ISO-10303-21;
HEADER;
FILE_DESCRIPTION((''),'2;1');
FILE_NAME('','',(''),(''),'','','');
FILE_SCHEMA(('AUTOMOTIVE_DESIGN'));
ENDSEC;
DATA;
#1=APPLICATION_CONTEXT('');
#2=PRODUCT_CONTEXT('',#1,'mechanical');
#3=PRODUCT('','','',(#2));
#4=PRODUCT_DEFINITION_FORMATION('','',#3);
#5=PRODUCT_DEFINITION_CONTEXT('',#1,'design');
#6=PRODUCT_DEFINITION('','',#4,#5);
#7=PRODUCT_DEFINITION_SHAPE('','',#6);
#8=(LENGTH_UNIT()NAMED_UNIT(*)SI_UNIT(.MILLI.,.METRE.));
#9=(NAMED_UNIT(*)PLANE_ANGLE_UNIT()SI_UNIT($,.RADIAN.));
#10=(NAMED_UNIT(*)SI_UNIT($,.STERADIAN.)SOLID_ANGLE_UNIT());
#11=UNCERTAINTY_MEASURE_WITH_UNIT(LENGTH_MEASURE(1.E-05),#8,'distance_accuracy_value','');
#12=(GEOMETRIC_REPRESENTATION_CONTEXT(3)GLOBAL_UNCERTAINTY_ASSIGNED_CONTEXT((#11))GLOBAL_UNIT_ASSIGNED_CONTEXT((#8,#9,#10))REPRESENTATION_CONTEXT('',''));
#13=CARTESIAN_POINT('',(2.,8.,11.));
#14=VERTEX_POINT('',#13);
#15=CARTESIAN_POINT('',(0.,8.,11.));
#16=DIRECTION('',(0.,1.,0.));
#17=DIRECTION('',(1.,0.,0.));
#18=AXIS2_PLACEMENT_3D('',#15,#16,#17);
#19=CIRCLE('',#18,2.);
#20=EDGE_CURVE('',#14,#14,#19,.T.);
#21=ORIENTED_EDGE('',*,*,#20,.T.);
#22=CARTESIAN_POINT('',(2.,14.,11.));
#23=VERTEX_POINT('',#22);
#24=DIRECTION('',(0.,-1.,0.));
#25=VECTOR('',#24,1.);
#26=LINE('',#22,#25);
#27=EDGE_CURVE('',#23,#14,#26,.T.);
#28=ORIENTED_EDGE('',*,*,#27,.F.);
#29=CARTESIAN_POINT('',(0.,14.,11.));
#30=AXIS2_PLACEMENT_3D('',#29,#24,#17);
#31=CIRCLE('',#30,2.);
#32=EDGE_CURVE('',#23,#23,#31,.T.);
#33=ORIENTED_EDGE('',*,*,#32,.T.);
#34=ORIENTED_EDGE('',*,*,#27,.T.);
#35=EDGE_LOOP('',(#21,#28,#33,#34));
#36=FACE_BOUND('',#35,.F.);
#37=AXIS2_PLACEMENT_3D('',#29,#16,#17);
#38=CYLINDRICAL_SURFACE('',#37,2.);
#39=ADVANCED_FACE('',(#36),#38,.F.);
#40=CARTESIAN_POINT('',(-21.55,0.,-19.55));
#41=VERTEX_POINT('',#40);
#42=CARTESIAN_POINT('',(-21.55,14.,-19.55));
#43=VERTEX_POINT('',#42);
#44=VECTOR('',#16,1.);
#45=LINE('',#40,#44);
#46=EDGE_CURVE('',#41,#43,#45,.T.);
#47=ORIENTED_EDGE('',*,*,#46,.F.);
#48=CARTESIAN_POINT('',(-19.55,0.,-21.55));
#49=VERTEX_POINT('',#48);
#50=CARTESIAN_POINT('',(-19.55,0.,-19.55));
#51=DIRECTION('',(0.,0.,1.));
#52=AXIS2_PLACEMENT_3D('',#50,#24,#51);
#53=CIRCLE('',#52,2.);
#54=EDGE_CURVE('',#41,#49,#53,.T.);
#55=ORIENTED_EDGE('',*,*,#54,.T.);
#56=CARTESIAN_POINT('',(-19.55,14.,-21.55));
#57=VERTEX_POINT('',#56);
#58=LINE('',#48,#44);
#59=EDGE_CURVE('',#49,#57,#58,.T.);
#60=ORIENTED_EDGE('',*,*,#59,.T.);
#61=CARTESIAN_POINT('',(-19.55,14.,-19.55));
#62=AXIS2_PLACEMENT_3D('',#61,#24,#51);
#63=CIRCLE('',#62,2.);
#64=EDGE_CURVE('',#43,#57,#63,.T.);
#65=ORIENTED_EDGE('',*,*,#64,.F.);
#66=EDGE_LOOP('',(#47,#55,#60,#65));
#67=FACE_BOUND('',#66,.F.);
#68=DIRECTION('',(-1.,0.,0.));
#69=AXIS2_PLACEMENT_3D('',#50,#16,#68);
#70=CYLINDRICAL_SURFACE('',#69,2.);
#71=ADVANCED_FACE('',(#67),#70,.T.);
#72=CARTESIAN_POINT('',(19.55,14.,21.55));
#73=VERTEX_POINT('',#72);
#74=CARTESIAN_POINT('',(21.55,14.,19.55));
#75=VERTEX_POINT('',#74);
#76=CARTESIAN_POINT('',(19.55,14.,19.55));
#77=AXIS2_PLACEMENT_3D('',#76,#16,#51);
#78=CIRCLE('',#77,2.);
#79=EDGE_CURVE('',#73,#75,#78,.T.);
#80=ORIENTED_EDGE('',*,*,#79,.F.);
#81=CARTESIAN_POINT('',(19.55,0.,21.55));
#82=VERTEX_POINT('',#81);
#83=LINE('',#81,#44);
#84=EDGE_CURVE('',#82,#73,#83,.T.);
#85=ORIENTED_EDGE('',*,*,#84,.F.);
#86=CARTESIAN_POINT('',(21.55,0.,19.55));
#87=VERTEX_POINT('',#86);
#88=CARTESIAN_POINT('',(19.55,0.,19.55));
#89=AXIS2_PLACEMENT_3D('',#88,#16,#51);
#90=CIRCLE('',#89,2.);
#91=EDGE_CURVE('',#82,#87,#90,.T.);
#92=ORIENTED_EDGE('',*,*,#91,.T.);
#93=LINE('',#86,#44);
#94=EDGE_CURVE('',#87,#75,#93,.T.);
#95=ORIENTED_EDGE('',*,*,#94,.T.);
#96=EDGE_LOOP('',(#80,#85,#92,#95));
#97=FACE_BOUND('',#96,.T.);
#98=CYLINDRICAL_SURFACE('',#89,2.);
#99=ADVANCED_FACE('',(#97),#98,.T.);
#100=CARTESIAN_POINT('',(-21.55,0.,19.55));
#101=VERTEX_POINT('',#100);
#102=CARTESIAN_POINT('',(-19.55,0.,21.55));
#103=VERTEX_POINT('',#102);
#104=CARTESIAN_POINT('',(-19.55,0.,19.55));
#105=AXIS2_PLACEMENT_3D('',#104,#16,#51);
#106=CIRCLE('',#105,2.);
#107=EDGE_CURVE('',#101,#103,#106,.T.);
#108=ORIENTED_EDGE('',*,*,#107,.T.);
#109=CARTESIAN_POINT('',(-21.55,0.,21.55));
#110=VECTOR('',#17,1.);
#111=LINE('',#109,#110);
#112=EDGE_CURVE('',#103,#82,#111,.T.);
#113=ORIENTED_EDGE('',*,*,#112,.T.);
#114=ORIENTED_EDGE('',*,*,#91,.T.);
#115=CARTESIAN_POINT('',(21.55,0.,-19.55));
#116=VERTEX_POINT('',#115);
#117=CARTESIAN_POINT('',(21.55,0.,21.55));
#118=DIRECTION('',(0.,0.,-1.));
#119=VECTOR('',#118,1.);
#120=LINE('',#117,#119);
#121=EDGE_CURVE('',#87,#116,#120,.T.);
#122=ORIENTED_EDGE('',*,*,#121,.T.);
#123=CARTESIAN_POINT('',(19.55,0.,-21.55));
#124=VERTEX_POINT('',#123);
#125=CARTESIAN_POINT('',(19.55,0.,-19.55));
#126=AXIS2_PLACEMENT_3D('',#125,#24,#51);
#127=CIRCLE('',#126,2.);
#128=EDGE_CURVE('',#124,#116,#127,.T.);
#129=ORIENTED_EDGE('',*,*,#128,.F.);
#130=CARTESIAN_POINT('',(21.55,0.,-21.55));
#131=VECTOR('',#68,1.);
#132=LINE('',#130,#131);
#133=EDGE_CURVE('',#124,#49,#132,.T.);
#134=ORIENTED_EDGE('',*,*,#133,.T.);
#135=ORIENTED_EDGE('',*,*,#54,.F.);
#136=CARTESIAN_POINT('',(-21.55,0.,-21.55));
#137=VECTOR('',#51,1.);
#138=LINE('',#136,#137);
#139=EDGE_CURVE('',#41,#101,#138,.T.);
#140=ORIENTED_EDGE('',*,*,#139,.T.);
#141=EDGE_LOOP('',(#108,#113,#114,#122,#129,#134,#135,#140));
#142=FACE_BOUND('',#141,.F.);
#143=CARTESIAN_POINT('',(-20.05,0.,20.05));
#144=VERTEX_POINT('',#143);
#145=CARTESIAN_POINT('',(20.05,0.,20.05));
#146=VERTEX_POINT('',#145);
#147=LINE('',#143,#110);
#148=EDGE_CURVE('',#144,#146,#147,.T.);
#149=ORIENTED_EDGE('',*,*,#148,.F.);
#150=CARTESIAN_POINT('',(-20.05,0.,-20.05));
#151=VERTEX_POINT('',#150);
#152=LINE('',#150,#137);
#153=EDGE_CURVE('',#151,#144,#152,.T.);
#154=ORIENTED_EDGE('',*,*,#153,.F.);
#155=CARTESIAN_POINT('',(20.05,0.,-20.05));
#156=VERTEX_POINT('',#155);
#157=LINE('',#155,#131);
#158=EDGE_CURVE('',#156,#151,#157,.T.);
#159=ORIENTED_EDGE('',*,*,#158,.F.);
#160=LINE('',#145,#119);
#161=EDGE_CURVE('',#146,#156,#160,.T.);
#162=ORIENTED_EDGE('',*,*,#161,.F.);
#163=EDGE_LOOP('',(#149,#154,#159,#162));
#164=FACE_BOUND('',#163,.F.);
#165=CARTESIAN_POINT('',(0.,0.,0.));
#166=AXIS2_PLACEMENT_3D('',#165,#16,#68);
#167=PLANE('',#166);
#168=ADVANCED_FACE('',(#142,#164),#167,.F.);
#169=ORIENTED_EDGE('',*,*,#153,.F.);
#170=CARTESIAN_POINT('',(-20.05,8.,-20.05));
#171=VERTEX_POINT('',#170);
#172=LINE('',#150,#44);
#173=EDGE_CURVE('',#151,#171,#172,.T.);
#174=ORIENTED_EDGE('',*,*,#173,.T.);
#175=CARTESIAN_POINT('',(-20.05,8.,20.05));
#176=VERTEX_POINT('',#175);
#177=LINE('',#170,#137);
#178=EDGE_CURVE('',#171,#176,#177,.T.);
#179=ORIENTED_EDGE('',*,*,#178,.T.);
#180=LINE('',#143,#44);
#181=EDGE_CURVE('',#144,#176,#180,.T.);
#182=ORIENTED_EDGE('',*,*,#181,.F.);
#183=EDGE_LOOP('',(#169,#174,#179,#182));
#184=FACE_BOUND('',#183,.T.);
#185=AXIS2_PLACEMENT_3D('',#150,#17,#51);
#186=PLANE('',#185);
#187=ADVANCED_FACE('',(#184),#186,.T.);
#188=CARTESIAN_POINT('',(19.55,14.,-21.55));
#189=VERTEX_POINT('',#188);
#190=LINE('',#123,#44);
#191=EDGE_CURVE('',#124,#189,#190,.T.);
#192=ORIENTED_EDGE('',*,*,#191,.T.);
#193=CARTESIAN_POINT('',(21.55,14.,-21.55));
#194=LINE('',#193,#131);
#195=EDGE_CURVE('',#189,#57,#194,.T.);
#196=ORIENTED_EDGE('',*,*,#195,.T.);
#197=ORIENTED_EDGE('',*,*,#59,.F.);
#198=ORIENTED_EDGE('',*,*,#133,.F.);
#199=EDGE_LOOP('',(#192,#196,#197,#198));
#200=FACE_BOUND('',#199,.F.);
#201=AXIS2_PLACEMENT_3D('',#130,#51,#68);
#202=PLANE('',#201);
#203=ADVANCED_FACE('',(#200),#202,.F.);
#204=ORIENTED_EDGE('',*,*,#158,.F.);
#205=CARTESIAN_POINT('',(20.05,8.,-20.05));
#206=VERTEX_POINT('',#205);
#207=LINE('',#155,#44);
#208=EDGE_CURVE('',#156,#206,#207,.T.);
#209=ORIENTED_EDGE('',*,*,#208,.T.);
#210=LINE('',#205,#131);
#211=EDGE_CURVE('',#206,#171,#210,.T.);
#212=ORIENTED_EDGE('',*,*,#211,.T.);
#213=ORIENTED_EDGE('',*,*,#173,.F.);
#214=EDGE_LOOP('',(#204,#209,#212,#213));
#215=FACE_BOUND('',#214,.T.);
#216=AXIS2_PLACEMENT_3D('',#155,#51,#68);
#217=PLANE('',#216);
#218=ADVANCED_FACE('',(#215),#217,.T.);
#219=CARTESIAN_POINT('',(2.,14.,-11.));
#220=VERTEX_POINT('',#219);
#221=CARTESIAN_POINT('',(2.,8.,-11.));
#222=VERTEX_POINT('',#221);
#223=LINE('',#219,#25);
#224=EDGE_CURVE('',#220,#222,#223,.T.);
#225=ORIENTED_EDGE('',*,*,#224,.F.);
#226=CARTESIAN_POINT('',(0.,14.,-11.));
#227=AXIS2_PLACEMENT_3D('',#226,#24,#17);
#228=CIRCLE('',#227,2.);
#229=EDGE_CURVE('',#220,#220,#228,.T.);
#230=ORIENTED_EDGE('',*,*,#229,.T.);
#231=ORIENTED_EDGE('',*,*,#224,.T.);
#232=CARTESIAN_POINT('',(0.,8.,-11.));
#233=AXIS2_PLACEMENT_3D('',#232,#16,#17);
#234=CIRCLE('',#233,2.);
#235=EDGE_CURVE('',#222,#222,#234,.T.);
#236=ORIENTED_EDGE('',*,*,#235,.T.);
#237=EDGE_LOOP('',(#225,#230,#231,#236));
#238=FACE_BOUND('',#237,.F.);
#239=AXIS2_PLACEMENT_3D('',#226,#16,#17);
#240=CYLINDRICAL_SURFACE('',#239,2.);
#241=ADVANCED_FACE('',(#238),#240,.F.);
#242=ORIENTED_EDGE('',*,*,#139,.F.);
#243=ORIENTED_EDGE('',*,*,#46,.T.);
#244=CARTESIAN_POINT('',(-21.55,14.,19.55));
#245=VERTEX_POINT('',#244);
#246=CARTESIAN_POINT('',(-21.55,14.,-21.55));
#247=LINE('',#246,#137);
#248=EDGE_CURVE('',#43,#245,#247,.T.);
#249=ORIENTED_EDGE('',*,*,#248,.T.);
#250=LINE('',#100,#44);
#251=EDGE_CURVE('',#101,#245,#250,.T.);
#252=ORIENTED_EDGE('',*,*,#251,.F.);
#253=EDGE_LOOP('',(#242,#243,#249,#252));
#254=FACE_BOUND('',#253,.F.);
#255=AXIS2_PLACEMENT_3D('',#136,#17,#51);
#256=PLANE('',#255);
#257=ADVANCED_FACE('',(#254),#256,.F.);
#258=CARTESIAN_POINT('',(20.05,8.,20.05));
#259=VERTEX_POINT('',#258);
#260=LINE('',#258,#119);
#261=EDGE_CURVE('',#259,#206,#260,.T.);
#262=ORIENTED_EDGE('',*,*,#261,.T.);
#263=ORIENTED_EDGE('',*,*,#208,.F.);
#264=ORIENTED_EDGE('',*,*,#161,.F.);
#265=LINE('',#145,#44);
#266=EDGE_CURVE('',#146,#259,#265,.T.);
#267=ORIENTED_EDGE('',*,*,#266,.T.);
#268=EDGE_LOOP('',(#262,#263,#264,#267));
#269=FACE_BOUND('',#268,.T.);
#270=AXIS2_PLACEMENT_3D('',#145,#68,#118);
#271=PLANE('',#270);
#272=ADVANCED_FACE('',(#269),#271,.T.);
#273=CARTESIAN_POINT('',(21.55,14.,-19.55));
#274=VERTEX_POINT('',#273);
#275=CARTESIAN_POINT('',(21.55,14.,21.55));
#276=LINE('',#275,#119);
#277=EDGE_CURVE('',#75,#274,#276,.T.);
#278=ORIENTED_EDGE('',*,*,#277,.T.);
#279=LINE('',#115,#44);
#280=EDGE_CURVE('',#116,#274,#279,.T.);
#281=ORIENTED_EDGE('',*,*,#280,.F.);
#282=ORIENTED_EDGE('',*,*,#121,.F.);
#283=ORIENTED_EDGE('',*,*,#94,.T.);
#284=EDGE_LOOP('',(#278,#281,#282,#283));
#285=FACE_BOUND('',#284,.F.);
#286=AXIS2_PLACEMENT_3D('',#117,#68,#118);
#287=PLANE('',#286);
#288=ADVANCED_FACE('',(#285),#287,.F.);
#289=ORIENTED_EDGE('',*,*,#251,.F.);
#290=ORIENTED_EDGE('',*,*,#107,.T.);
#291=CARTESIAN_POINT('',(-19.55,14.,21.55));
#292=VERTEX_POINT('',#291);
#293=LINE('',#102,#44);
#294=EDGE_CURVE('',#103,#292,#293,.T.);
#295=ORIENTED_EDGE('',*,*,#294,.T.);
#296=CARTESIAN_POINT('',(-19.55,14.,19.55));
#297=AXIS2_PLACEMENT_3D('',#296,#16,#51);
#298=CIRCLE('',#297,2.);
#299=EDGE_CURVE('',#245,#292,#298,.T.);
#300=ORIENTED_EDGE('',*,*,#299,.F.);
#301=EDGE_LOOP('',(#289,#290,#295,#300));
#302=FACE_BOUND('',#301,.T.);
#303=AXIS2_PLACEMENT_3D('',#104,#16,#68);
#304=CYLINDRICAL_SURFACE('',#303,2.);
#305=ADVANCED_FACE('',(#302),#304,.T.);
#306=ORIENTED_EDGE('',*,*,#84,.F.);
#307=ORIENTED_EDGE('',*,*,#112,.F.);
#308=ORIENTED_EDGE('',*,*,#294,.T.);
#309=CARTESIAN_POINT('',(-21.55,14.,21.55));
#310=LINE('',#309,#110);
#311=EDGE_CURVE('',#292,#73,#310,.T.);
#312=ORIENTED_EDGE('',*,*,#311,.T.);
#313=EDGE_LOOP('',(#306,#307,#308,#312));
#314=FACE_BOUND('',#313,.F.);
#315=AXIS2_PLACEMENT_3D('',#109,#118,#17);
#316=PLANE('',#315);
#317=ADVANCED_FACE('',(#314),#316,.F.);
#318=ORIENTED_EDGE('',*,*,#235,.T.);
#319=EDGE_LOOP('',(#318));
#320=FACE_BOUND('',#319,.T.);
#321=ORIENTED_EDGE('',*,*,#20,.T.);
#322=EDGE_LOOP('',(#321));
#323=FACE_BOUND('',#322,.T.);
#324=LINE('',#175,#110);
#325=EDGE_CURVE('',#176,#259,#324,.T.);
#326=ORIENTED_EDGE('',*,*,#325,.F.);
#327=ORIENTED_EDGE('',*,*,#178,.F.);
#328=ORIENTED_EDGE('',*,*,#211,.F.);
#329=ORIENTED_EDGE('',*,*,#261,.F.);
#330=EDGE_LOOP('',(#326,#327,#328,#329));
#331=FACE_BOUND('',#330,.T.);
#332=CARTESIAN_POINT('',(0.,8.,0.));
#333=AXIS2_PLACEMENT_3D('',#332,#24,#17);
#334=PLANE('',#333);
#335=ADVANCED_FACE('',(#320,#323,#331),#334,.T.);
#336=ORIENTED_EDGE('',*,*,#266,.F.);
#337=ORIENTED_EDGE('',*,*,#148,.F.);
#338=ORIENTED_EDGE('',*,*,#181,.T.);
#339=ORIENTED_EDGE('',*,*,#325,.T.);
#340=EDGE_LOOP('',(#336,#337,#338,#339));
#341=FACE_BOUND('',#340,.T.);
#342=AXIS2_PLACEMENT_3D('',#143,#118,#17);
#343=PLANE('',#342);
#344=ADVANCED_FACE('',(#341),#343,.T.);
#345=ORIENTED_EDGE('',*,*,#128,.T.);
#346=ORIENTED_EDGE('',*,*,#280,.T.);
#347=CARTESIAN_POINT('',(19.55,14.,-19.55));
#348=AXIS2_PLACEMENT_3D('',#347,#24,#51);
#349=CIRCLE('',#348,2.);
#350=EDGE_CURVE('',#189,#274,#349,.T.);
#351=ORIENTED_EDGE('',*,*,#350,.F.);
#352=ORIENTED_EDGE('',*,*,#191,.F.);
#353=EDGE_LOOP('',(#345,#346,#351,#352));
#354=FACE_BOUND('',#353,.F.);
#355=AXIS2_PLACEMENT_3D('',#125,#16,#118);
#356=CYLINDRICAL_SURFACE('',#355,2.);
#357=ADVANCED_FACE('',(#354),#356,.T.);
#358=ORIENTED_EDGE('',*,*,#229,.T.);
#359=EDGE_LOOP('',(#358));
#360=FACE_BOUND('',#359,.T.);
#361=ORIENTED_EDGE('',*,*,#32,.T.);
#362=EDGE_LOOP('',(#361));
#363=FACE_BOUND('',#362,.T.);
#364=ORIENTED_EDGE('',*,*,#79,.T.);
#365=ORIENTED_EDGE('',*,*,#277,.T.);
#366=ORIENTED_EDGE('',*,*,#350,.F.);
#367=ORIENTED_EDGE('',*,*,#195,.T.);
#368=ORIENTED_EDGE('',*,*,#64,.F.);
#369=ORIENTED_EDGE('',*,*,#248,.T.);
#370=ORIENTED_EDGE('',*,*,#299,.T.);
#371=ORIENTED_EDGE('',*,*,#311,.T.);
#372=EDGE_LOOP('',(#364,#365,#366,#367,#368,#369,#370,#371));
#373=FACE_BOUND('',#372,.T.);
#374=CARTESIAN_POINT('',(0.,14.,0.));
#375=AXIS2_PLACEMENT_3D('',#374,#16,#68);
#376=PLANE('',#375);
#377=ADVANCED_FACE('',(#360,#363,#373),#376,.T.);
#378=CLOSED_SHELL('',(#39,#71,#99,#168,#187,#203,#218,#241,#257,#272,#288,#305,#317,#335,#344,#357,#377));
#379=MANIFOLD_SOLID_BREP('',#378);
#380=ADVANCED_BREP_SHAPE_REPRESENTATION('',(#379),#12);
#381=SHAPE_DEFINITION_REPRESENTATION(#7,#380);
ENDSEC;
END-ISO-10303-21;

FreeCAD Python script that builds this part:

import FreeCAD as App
import Part
import Sketcher

V = App.Vector


def edges_at(feature, points):
    """Names of the edges that pass closest to the given points."""
    edges = feature.Shape.Edges
    near = lambda p: min(range(len(edges)), key=lambda i: edges[i].distToShape(Part.Vertex(*p))[0])
    return sorted({f"Edge{near(p) + 1}" for p in points})

doc = App.newDocument("Part")
params = doc.addObject("Spreadsheet::Sheet", "Params")
for row, (alias, value) in enumerate([
    ("sketch1_width", "43.1 mm"),
    ("pad1_length", "14 mm"),
    ("sketch2_width", "40.1 mm"),
    ("pocket1_length", "8 mm"),
    ("fillet_radius", "2 mm"),
    ("sketch3_diameter", "4 mm"),
], start=1):
    params.set(f"A{row}", alias)
    params.set(f"B{row}", "=" + value)
    params.setAlias(f"B{row}", alias)

body = doc.addObject("PartDesign::Body", "Body")

# Sketch on XZ plane
sketch1 = body.newObject("Sketcher::SketchObject", "Sketch")
sketch1.AttachmentSupport = (doc.getObject("XZ_Plane"), [""])
sketch1.MapMode = "FlatFace"
sketch1.addGeometry(Part.LineSegment(V(-22, -22, 0), V(-22, 22, 0)), False)
sketch1.addGeometry(Part.LineSegment(V(-22, 22, 0), V(22, 22, 0)), False)
sketch1.addGeometry(Part.LineSegment(V(22, 22, 0), V(22, -22, 0)), False)
sketch1.addGeometry(Part.LineSegment(V(22, -22, 0), V(-22, -22, 0)), False)
sketch1.addConstraint(Sketcher.Constraint("Coincident", 0, 2, 1, 1))
sketch1.addConstraint(Sketcher.Constraint("Coincident", 1, 2, 2, 1))
sketch1.addConstraint(Sketcher.Constraint("Coincident", 2, 2, 3, 1))
sketch1.addConstraint(Sketcher.Constraint("Coincident", 3, 2, 0, 1))
sketch1.addConstraint(Sketcher.Constraint("Vertical", 0))
sketch1.addConstraint(Sketcher.Constraint("Horizontal", 1))
sketch1.addConstraint(Sketcher.Constraint("Vertical", 2))
sketch1.addConstraint(Sketcher.Constraint("Horizontal", 3))
sketch1.addConstraint(Sketcher.Constraint("Symmetric", 0, 2, 2, 2, -1, 1))
sketch1.addConstraint(Sketcher.Constraint("Equal", 3, 0))
sketch1.addConstraint(Sketcher.Constraint("DistanceX", 1, 1, 1, 2, 43.1))
sketch1.setExpression("Constraints[10]", "Params.sketch1_width")
pad1 = body.newObject("PartDesign::Pad", "Pad")
pad1.Profile = sketch1
pad1.setExpression("Length", "Params.pad1_length")
pad1.Reversed = True

# Sketch on XZ plane
sketch2 = body.newObject("Sketcher::SketchObject", "Sketch001")
sketch2.AttachmentSupport = (doc.getObject("XZ_Plane"), [""])
sketch2.MapMode = "FlatFace"
sketch2.addGeometry(Part.LineSegment(V(20, 20, 0), V(-20, 20, 0)), False)
sketch2.addGeometry(Part.LineSegment(V(-20, 20, 0), V(-20, -20, 0)), False)
sketch2.addGeometry(Part.LineSegment(V(-20, -20, 0), V(20, -20, 0)), False)
sketch2.addGeometry(Part.LineSegment(V(20, -20, 0), V(20, 20, 0)), False)
sketch2.addConstraint(Sketcher.Constraint("Coincident", 0, 2, 1, 1))
sketch2.addConstraint(Sketcher.Constraint("Coincident", 1, 2, 2, 1))
sketch2.addConstraint(Sketcher.Constraint("Coincident", 2, 2, 3, 1))
sketch2.addConstraint(Sketcher.Constraint("Coincident", 3, 2, 0, 1))
sketch2.addConstraint(Sketcher.Constraint("Horizontal", 0))
sketch2.addConstraint(Sketcher.Constraint("Vertical", 1))
sketch2.addConstraint(Sketcher.Constraint("Horizontal", 2))
sketch2.addConstraint(Sketcher.Constraint("Vertical", 3))
sketch2.addConstraint(Sketcher.Constraint("Symmetric", 0, 2, 2, 2, -1, 1))
sketch2.addConstraint(Sketcher.Constraint("Equal", 2, 1))
sketch2.addConstraint(Sketcher.Constraint("DistanceX", 0, 2, 0, 1, 40.1))
sketch2.setExpression("Constraints[10]", "Params.sketch2_width")
pocket1 = body.newObject("PartDesign::Pocket", "Pocket")
pocket1.Profile = sketch2
pocket1.setExpression("Length", "Params.pocket1_length")
doc.recompute()

fillet = body.newObject("PartDesign::Fillet", "Fillet")
fillet.Base = (pocket1, edges_at(pocket1, [
    (-21.55, 7, 21.55),
    (21.55, 7, 21.55),
    (21.55, 7, -21.55),
    (-21.55, 7, -21.55),
]))
fillet.setExpression("Radius", "Params.fillet_radius")

# Sketch on XZ plane
sketch3 = body.newObject("Sketcher::SketchObject", "Sketch002")
sketch3.AttachmentSupport = (doc.getObject("XZ_Plane"), [""])
sketch3.MapMode = "FlatFace"
sketch3.AttachmentOffset = App.Placement(V(0, 0, -14), App.Rotation())
sketch3.addGeometry(Part.Circle(V(0, -11, 0), V(0, 0, 1), 2), False)
sketch3.addGeometry(Part.Circle(V(0, 11, 0), V(0, 0, 1), 2), False)
sketch3.addConstraint(Sketcher.Constraint("Equal", 0, 1))
sketch3.addConstraint(Sketcher.Constraint("Symmetric", 0, 3, 1, 3, -1, 1))
sketch3.addConstraint(Sketcher.Constraint("PointOnObject", 0, 3, -2))
sketch3.addConstraint(Sketcher.Constraint("Diameter", 0, 4.0))
sketch3.addConstraint(Sketcher.Constraint("DistanceY", 0, 3, 1, 3, 22.0))
sketch3.setExpression("Constraints[3]", "Params.sketch3_diameter")
pocket2 = body.newObject("PartDesign::Pocket", "Pocket001")
pocket2.Profile = sketch3
pocket2.Type = "ThroughAll"
pocket2.Reversed = True

doc.recompute()
